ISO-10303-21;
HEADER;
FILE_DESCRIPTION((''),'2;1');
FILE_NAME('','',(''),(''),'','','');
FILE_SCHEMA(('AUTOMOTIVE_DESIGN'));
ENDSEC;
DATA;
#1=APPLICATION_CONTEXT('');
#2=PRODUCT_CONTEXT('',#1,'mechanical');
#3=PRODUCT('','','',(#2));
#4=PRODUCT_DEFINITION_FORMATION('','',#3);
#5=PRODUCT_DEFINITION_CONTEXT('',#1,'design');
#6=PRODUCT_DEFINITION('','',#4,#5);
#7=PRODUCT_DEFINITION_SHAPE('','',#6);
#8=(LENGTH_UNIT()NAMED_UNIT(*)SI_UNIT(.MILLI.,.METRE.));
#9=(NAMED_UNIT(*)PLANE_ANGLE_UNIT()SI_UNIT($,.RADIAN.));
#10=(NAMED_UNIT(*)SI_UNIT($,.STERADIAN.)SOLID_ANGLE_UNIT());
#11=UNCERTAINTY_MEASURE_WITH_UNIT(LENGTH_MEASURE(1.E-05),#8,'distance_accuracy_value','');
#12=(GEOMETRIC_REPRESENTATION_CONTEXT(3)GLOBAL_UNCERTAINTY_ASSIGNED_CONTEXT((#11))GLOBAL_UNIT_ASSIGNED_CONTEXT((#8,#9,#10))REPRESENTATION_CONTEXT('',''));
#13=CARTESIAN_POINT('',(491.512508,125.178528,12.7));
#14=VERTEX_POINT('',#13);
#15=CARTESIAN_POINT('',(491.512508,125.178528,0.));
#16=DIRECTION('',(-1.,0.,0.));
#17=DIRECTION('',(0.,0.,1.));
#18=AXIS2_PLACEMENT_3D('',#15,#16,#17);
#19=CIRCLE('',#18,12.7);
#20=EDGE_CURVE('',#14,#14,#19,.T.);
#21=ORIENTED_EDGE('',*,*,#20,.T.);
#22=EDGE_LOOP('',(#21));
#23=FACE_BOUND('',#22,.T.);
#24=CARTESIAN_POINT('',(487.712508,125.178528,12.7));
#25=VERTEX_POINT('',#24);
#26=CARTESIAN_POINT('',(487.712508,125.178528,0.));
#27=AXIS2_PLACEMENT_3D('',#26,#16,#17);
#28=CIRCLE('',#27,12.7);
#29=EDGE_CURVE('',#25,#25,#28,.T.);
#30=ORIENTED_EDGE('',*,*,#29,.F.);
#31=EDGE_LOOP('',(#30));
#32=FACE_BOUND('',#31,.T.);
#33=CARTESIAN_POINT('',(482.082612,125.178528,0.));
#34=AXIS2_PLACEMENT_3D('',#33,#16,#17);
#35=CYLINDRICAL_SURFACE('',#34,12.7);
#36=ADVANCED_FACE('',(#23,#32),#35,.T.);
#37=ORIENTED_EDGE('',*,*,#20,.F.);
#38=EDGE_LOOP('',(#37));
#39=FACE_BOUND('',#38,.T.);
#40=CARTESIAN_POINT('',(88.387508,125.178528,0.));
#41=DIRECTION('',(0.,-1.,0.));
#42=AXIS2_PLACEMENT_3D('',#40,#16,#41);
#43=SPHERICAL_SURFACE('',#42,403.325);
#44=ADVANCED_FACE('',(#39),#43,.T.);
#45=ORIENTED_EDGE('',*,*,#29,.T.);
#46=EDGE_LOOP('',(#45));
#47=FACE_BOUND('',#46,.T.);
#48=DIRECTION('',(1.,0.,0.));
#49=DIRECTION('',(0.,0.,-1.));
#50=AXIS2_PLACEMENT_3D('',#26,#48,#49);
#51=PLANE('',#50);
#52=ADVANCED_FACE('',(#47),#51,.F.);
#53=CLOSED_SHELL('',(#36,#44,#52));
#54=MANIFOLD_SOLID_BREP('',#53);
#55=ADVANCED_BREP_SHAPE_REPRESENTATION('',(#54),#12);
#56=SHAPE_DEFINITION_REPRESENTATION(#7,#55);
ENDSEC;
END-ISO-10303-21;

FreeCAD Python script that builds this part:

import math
import FreeCAD as App
import Part
import Sketcher
Q = App.Units.Quantity

doc = App.newDocument("Part")
params = doc.addObject("Spreadsheet::Sheet", "Params")
for row, (alias, value) in enumerate([
    ("sketch1_width", "4 mm"),
    ("sketch1_width2", "3.8 mm"),
    ("sketch1_height", "12.7 mm"),
    ("revolution_angle", "360 deg"),
], start=1):
    params.set(f"A{row}", alias)
    params.set(f"B{row}", "=" + value)
    params.setAlias(f"B{row}", alias)

body = doc.addObject("PartDesign::Body", "Body")

# Sketch on XY plane
sketch1 = body.newObject("Sketcher::SketchObject", "Sketch")
sketch1.AttachmentSupport = (doc.getObject("XY_Plane"), [""])
sketch1.MapMode = "FlatFace"
sketch1.addGeometry(Part.LineSegment(App.Vector(487.7, 137.9, 0), App.Vector(487.7, 125.2, 0)), False)
sketch1.addGeometry(Part.LineSegment(App.Vector(487.7, 125.2, 0), App.Vector(491.7, 125.2, 0)), False)
sketch1.addGeometry(Part.ArcOfCircle(Part.Circle(App.Vector(88.4, 125.2, 0), App.Vector(0, 0, 1), 403.3), math.radians(0), math.radians(1.8)), False)
sketch1.addGeometry(Part.LineSegment(App.Vector(491.5, 137.9, 0), App.Vector(487.7, 137.9, 0)), False)
sketch1.addGeometry(Part.LineSegment(App.Vector(88.4, 125.2, 0), App.Vector(491.7, 125.2, 0)), True)  # axis
sketch1.addConstraint(Sketcher.Constraint("Coincident", 0, 2, 1, 1))
sketch1.addConstraint(Sketcher.Constraint("Coincident", 1, 2, 2, 1))
sketch1.addConstraint(Sketcher.Constraint("Coincident", 2, 2, 3, 1))
sketch1.addConstraint(Sketcher.Constraint("Coincident", 3, 2, 0, 1))
sketch1.addConstraint(Sketcher.Constraint("Vertical", 0))
sketch1.addConstraint(Sketcher.Constraint("Horizontal", 1))
sketch1.addConstraint(Sketcher.Constraint("Horizontal", 3))
sketch1.addConstraint(Sketcher.Constraint("Horizontal", 4))
sketch1.addConstraint(Sketcher.Constraint("Coincident", 4, 1, 2, 3))
sketch1.addConstraint(Sketcher.Constraint("Coincident", 4, 2, 1, 2))
sketch1.addConstraint(Sketcher.Constraint("DistanceX", 1, 1, 1, 2, Q("4 mm")))
sketch1.addConstraint(Sketcher.Constraint("DistanceX", 3, 2, 3, 1, Q("3.8 mm")))
sketch1.addConstraint(Sketcher.Constraint("DistanceY", 0, 2, 0, 1, Q("12.7 mm")))
sketch1.addConstraint(Sketcher.Constraint("DistanceX", -1, 1, 2, 3, Q("88.387505 mm")))
sketch1.addConstraint(Sketcher.Constraint("DistanceY", -1, 1, 2, 3, Q("125.178528 mm")))
sketch1.setExpression("Constraints[10]", "Params.sketch1_width")
sketch1.setExpression("Constraints[11]", "Params.sketch1_width2")
sketch1.setExpression("Constraints[12]", "Params.sketch1_height")
revolution = body.newObject("PartDesign::Revolution", "Revolution")
revolution.Profile = sketch1
revolution.ReferenceAxis = (sketch1, ["Axis0"])
revolution.setExpression("Angle", "Params.revolution_angle")

doc.recompute()
